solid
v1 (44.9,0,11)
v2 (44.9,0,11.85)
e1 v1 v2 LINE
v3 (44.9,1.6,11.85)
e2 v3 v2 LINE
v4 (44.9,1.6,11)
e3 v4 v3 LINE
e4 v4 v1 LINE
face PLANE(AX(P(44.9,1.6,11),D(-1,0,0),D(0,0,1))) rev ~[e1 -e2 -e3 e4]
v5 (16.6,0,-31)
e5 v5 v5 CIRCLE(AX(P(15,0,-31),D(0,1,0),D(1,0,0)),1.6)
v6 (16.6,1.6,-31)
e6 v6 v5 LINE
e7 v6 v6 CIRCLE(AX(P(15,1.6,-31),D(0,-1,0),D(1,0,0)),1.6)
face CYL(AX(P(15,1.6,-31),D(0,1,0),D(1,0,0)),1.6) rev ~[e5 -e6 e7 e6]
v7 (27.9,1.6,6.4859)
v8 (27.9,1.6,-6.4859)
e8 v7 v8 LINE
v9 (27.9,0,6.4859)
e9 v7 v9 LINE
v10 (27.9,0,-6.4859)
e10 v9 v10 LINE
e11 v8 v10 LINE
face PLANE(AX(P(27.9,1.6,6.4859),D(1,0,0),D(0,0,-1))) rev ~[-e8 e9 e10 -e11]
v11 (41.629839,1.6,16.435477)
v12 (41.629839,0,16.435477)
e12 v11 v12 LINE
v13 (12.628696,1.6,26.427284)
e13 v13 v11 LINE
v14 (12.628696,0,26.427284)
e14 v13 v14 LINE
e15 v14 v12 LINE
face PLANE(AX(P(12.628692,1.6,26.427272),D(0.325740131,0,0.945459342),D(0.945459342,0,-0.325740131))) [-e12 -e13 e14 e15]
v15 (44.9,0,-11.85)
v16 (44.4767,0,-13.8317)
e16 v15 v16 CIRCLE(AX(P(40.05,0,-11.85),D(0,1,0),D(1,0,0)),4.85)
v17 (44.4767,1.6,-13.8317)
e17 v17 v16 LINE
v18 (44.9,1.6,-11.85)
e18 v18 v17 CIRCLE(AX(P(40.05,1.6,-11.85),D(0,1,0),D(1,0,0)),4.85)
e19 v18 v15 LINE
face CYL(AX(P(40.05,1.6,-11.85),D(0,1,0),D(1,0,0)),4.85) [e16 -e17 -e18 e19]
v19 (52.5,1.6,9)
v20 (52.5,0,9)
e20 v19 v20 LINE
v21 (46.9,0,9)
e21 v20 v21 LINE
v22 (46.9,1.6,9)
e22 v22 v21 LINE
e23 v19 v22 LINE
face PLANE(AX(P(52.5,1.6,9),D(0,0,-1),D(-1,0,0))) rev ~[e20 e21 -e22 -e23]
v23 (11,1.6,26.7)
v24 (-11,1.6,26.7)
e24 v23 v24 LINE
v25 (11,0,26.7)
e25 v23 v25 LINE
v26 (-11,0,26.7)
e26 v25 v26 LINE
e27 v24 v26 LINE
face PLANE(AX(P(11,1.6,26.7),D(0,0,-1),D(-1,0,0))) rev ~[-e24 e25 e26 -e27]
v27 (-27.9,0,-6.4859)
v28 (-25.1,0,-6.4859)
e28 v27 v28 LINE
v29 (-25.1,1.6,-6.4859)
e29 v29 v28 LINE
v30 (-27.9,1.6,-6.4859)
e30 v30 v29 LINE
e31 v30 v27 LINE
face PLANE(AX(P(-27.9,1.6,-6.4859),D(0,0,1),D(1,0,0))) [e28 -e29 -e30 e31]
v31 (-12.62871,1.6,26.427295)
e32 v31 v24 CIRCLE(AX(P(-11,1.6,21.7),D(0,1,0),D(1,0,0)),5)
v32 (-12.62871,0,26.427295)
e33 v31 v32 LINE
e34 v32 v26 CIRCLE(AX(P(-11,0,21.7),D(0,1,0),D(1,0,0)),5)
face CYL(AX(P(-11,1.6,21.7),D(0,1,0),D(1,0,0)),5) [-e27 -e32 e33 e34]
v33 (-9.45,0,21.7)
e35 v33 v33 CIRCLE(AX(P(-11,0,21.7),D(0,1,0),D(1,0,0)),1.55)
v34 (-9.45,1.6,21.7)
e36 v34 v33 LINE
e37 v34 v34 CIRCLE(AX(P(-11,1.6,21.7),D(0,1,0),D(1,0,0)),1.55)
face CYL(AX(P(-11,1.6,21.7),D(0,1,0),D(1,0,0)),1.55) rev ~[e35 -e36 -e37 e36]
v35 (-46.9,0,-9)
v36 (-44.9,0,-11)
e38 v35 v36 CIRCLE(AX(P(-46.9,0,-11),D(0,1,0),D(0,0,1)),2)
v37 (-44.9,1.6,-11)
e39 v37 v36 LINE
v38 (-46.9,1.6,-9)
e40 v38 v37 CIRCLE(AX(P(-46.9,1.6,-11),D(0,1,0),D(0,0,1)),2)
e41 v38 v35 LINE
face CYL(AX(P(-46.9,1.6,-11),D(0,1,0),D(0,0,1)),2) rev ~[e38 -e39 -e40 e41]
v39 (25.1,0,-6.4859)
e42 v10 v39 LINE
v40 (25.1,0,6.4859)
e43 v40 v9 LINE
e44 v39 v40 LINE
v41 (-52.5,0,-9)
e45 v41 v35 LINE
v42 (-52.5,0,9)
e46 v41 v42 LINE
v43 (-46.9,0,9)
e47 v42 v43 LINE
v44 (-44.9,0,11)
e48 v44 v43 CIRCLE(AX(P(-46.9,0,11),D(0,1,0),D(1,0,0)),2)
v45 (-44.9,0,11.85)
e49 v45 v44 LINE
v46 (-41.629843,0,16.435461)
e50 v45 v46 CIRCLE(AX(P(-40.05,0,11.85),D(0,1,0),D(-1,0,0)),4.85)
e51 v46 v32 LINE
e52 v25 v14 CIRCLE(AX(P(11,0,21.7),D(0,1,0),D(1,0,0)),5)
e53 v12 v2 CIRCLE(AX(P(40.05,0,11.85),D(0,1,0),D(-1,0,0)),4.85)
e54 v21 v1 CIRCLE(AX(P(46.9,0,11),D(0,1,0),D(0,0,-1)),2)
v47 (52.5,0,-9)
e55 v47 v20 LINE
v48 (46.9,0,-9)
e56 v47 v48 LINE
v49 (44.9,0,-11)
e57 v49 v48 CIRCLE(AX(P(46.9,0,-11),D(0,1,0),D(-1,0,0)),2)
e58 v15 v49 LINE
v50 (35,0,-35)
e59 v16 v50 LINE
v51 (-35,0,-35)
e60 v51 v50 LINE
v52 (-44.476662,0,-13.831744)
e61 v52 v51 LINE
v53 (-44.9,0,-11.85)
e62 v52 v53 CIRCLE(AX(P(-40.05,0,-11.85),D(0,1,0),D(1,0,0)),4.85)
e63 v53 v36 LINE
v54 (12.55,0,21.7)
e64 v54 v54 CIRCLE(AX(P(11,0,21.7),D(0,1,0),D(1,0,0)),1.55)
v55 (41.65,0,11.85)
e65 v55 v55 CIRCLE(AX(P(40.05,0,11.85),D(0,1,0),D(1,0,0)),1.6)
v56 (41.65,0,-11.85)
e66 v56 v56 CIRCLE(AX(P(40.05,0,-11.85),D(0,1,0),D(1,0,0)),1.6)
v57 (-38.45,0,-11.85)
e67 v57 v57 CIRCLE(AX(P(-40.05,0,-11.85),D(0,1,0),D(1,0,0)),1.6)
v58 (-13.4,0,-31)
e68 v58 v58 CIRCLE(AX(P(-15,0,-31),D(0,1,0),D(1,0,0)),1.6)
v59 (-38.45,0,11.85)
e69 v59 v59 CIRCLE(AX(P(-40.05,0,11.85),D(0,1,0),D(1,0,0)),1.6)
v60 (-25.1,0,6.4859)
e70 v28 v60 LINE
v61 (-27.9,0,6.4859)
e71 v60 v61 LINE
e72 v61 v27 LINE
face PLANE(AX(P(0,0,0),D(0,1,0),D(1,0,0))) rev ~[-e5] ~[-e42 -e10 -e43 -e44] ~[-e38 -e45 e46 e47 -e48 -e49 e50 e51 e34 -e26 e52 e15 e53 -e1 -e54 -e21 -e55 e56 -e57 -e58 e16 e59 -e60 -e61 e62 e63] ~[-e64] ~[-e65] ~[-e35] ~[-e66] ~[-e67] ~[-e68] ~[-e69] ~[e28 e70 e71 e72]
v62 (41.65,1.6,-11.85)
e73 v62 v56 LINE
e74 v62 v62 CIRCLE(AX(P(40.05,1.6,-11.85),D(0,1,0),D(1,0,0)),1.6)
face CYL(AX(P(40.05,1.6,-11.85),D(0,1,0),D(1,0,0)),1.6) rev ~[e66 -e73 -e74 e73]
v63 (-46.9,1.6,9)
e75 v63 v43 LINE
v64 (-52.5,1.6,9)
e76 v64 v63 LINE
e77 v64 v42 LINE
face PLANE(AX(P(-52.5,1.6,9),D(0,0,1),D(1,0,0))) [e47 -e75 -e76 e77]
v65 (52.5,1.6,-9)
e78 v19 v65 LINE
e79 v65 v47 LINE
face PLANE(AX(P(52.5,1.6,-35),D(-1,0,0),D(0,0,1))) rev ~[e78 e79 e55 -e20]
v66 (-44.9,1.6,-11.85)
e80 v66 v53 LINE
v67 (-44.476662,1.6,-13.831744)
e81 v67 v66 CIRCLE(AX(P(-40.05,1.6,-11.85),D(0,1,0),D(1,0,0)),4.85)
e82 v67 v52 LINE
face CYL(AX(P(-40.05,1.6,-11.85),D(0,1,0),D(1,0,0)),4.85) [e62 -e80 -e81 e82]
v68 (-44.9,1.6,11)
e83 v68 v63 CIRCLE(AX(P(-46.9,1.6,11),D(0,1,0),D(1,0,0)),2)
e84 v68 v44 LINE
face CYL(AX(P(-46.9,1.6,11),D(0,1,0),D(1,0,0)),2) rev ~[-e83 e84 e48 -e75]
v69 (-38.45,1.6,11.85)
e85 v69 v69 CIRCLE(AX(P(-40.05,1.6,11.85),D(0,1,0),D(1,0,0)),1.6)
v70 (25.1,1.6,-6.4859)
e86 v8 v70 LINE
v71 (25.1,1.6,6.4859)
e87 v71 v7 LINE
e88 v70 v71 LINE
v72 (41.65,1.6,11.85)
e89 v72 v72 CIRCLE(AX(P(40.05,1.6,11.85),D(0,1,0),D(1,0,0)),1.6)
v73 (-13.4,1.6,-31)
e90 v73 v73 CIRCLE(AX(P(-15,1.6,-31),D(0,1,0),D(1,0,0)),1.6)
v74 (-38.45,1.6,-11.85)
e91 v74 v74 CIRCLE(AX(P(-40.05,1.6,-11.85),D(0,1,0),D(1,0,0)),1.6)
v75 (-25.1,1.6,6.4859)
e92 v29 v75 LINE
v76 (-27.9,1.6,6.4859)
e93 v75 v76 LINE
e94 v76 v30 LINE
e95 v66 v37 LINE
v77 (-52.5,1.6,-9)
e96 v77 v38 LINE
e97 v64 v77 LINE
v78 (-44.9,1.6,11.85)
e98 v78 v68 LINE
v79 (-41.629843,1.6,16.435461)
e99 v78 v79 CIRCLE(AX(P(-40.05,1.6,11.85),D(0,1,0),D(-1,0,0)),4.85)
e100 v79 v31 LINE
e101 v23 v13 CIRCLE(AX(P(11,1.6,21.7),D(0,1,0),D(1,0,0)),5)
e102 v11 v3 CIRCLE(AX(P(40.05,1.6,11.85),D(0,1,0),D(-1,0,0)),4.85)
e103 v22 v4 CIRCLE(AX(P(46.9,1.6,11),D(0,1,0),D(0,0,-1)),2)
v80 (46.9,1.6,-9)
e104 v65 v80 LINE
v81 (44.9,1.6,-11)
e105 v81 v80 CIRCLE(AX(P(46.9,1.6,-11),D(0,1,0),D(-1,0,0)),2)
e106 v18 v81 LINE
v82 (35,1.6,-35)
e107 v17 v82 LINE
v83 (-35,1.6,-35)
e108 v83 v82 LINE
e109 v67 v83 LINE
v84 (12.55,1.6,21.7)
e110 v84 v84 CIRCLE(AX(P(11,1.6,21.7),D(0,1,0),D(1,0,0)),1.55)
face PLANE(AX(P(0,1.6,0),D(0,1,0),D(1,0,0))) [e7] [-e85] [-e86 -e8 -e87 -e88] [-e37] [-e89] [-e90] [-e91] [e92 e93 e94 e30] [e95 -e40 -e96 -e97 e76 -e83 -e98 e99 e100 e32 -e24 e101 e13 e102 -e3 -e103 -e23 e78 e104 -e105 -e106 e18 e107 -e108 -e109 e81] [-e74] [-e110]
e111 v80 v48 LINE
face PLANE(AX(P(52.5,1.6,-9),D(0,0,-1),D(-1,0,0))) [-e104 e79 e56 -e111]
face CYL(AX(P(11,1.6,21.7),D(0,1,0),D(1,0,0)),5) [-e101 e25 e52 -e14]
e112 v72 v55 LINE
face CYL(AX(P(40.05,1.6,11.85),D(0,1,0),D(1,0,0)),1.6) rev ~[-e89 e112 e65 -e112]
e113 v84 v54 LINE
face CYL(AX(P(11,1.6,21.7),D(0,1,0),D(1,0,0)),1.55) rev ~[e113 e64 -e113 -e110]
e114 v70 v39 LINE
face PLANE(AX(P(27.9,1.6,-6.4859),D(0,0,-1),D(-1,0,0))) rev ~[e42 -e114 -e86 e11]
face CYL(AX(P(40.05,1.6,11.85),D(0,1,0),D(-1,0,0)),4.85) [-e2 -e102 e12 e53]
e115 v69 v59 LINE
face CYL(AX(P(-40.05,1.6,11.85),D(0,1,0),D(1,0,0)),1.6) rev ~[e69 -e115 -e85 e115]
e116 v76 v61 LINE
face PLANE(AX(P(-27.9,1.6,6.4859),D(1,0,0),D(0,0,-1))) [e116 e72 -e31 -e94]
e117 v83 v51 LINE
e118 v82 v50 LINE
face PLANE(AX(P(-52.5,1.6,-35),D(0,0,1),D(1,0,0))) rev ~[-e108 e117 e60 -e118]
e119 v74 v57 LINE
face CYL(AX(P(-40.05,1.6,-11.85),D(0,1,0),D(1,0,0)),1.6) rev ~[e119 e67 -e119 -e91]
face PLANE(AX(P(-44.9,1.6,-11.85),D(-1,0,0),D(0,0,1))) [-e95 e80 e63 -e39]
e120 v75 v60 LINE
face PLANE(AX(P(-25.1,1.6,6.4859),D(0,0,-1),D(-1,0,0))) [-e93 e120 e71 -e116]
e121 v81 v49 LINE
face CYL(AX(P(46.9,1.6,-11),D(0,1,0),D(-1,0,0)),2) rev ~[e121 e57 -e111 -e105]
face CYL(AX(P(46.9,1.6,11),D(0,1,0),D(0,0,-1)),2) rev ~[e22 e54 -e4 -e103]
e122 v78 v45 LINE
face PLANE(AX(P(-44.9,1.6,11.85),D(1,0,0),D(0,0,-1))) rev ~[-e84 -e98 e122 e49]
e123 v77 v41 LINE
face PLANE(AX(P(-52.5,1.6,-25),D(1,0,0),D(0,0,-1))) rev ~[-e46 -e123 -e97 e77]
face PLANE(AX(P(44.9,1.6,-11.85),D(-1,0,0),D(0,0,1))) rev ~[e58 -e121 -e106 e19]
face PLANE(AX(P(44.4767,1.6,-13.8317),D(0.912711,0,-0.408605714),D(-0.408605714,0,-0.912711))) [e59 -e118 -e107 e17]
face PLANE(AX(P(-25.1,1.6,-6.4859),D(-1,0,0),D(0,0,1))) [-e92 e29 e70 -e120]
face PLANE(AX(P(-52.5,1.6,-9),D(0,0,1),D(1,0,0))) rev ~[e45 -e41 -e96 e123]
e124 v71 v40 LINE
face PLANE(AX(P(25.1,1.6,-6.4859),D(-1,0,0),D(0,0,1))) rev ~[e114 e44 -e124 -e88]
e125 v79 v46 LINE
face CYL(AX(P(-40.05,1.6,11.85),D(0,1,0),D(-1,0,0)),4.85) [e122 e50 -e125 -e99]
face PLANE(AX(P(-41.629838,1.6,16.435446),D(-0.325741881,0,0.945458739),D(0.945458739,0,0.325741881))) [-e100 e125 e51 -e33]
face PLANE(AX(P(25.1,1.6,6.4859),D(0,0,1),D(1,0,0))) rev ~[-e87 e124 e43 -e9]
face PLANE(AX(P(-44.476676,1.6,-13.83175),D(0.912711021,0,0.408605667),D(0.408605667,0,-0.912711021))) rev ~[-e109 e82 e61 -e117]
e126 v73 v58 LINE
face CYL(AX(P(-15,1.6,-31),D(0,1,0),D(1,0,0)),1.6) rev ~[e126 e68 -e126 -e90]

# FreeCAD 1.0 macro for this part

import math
import FreeCAD as App
import Part
import Sketcher

doc = App.newDocument("Part")
params = doc.addObject("Spreadsheet::Sheet", "Params")
for row, (alias, value) in enumerate([
    ("sketch1_width", "105 mm"),
    ("sketch1_height", "50 mm"),
    ("pad1_length", "1.6 mm"),
    ("sketch2_diameter", "3.2 mm"),
    ("pocket1_length", "10 mm"),
    ("sketch3_height", "10 mm"),
    ("sketch3_width", "105 mm"),
    ("pad2_length", "1.6 mm"),
    ("sketch4_radius", "5 mm"),
    ("sketch4_diameter", "3.1 mm"),
    ("sketch4_radius2", "2 mm"),
    ("sketch4_height", "5 mm"),
    ("sketch4_height2", "16 mm"),
    ("pocket2_length", "10 mm"),
    ("sketch5_radius", "5 mm"),
    ("sketch5_width", "22 mm"),
    ("pad3_length", "1.6 mm"),
    ("sketch6_diameter", "3.2 mm"),
    ("sketch7_width", "2.8 mm"),
    ("pocket4_length", "10 mm"),
    ("sketch8_radius", "2 mm"),
    ("sketch8_height", "26 mm"),
    ("sketch8_radius2", "4.85 mm"),
    ("sketch8_width", "5.6 mm"),
    ("sketch8_width2", "17.5 mm"),
    ("pocket5_length", "10 mm"),
    ("sketch9_radius", "5 mm"),
    ("sketch9_height", "5 mm"),
    ("sketch9_radius2", "4.85 mm"),
    ("sketch9_width", "24.05 mm"),
    ("pad4_length", "1.6 mm"),
], start=1):
    params.set(f"A{row}", alias)
    params.set(f"B{row}", "=" + value)
    params.setAlias(f"B{row}", alias)

body = doc.addObject("PartDesign::Body", "Body")

# Sketch on XZ plane
sketch1 = body.newObject("Sketcher::SketchObject", "Sketch")
sketch1.AttachmentSupport = (doc.getObject("XZ_Plane"), [""])
sketch1.MapMode = "FlatFace"
sketch1.addGeometry(Part.LineSegment(App.Vector(-52, -25, 0), App.Vector(-52, 25, 0)), False)
sketch1.addGeometry(Part.LineSegment(App.Vector(-52, 25, 0), App.Vector(52, 25, 0)), False)
sketch1.addGeometry(Part.LineSegment(App.Vector(52, 25, 0), App.Vector(52, -25, 0)), False)
sketch1.addGeometry(Part.LineSegment(App.Vector(52, -25, 0), App.Vector(-52, -25, 0)), False)
sketch1.addConstraint(Sketcher.Constraint("Coincident", 0, 2, 1, 1))
sketch1.addConstraint(Sketcher.Constraint("Coincident", 1, 2, 2, 1))
sketch1.addConstraint(Sketcher.Constraint("Coincident", 2, 2, 3, 1))
sketch1.addConstraint(Sketcher.Constraint("Coincident", 3, 2, 0, 1))
sketch1.addConstraint(Sketcher.Constraint("Vertical", 0))
sketch1.addConstraint(Sketcher.Constraint("Horizontal", 1))
sketch1.addConstraint(Sketcher.Constraint("Vertical", 2))
sketch1.addConstraint(Sketcher.Constraint("Horizontal", 3))
sketch1.addConstraint(Sketcher.Constraint("Symmetric", 0, 2, 2, 2, -1, 1))
sketch1.addConstraint(Sketcher.Constraint("DistanceX", 1, 1, 1, 2, 105.0))
sketch1.addConstraint(Sketcher.Constraint("DistanceY", 0, 1, 0, 2, 50.0))
sketch1.setExpression("Constraints[9]", "Params.sketch1_width")
sketch1.setExpression("Constraints[10]", "Params.sketch1_height")
pad1 = body.newObject("PartDesign::Pad", "Pad")
pad1.Profile = sketch1
pad1.setExpression("Length", "Params.pad1_length")
pad1.Reversed = True

# Sketch on XZ plane
sketch2 = body.newObject("Sketcher::SketchObject", "Sketch001")
sketch2.AttachmentSupport = (doc.getObject("XZ_Plane"), [""])
sketch2.MapMode = "FlatFace"
sketch2.AttachmentOffset = App.Placement(App.Vector(0, 0, -1.6), App.Rotation())
sketch2.addGeometry(Part.Circle(App.Vector(-40, -11.8, 0), App.Vector(0, 0, 1), 1.6), False)
sketch2.addGeometry(Part.Circle(App.Vector(-40, 11.8, 0), App.Vector(0, 0, 1), 1.6), False)
sketch2.addGeometry(Part.Circle(App.Vector(40, -11.8, 0), App.Vector(0, 0, 1), 1.6), False)
sketch2.addGeometry(Part.Circle(App.Vector(40, 11.8, 0), App.Vector(0, 0, 1), 1.6), False)
sketch2.addConstraint(Sketcher.Constraint("Equal", 0, 1))
sketch2.addConstraint(Sketcher.Constraint("Equal", 1, 2))
sketch2.addConstraint(Sketcher.Constraint("Equal", 2, 3))
sketch2.addConstraint(Sketcher.Constraint("Symmetric", 1, 3, 2, 3, -1, 1))
sketch2.addConstraint(Sketcher.Constraint("Symmetric", 0, 3, 3, 3, -1, 1))
sketch2.addConstraint(Sketcher.Constraint("Symmetric", 0, 3, 2, 3, -2))
sketch2.addConstraint(Sketcher.Constraint("Diameter", 0, 3.2))
sketch2.addConstraint(Sketcher.Constraint("DistanceY", 0, 3, 1, 3, 23.7))
sketch2.addConstraint(Sketcher.Constraint("DistanceX", 0, 3, 2, 3, 80.1))
sketch2.setExpression("Constraints[6]", "Params.sketch2_diameter")
pocket1 = body.newObject("PartDesign::Pocket", "Pocket")
pocket1.Profile = sketch2
pocket1.setExpression("Length", "Params.pocket1_length")
pocket1.Reversed = True

# Sketch on XZ plane
sketch3 = body.newObject("Sketcher::SketchObject", "Sketch002")
sketch3.AttachmentSupport = (doc.getObject("XZ_Plane"), [""])
sketch3.MapMode = "FlatFace"
sketch3.AttachmentOffset = App.Placement(App.Vector(0, 0, -1.6), App.Rotation())
sketch3.addGeometry(Part.LineSegment(App.Vector(-52, -25, 0), App.Vector(52, -25, 0)), False)
sketch3.addGeometry(Part.LineSegment(App.Vector(52, -25, 0), App.Vector(52, -35, 0)), False)
sketch3.addGeometry(Part.LineSegment(App.Vector(52, -35, 0), App.Vector(-52, -35, 0)), False)
sketch3.addGeometry(Part.LineSegment(App.Vector(-52, -35, 0), App.Vector(-52, -25, 0)), False)
sketch3.addConstraint(Sketcher.Constraint("Coincident", 0, 2, 1, 1))
sketch3.addConstraint(Sketcher.Constraint("Coincident", 1, 2, 2, 1))
sketch3.addConstraint(Sketcher.Constraint("Coincident", 2, 2, 3, 1))
sketch3.addConstraint(Sketcher.Constraint("Coincident", 3, 2, 0, 1))
sketch3.addConstraint(Sketcher.Constraint("Horizontal", 0))
sketch3.addConstraint(Sketcher.Constraint("Vertical", 1))
sketch3.addConstraint(Sketcher.Constraint("Horizontal", 2))
sketch3.addConstraint(Sketcher.Constraint("Vertical", 3))
sketch3.addConstraint(Sketcher.Constraint("DistanceY", 1, 2, 1, 1, 10.0))
sketch3.addConstraint(Sketcher.Constraint("DistanceX", 0, 1, 0, 2, 105.0))
sketch3.addConstraint(Sketcher.Constraint("DistanceY", 0, 2, -1, 1, 25.0))
sketch3.addConstraint(Sketcher.Constraint("DistanceX", -1, 1, 0, 2, 52.5))
sketch3.setExpression("Constraints[8]", "Params.sketch3_height")
sketch3.setExpression("Constraints[9]", "Params.sketch3_width")
pad2 = body.newObject("PartDesign::Pad", "Pad001")
pad2.Profile = sketch3
pad2.setExpression("Length", "Params.pad2_length")

# Sketch on XZ plane
sketch4 = body.newObject("Sketcher::SketchObject", "Sketch003")
sketch4.AttachmentSupport = (doc.getObject("XZ_Plane"), [""])
sketch4.MapMode = "FlatFace"
sketch4.AttachmentOffset = App.Placement(App.Vector(0, 0, -1.6), App.Rotation())
sketch4.addGeometry(Part.ArcOfCircle(Part.Circle(App.Vector(40, 11.8, 0), App.Vector(0, 0, 1), 4.8), math.radians(0), math.radians(90)), False)
sketch4.addGeometry(Part.LineSegment(App.Vector(40, 16.7, 0), App.Vector(16, 16.7, 0)), False)
sketch4.addGeometry(Part.LineSegment(App.Vector(16, 16.7, 0), App.Vector(16, 21.7, 0)), False)
sketch4.addGeometry(Part.ArcOfCircle(Part.Circle(App.Vector(11, 21.7, 0), App.Vector(0, 0, 1), 5), math.radians(0), math.radians(41)), False)
sketch4.addGeometry(Part.LineSegment(App.Vector(14.8, 25, 0), App.Vector(52.5, 25, 0)), False)
sketch4.addGeometry(Part.LineSegment(App.Vector(52.5, 25, 0), App.Vector(52.5, 9, 0)), False)
sketch4.addGeometry(Part.LineSegment(App.Vector(52.5, 9, 0), App.Vector(46.9, 9, 0)), False)
sketch4.addGeometry(Part.ArcOfCircle(Part.Circle(App.Vector(46.9, 11, 0), App.Vector(0, 0, 1), 2), math.radians(180), math.radians(270)), False)
sketch4.addGeometry(Part.LineSegment(App.Vector(44.9, 11, 0), App.Vector(44.9, 11.8, 0)), False)
sketch4.addGeometry(Part.LineSegment(App.Vector(-16, 21.7, 0), App.Vector(-16, 16.7, 0)), False)
sketch4.addGeometry(Part.LineSegment(App.Vector(-16, 16.7, 0), App.Vector(-40, 16.7, 0)), False)
sketch4.addGeometry(Part.ArcOfCircle(Part.Circle(App.Vector(-40, 11.8, 0), App.Vector(0, 0, 1), 4.9), math.radians(90), math.radians(180)), False)
sketch4.addGeometry(Part.LineSegment(App.Vector(-44.9, 11.8, 0), App.Vector(-44.9, 11, 0)), False)
sketch4.addGeometry(Part.ArcOfCircle(Part.Circle(App.Vector(-46.9, 11, 0), App.Vector(0, 0, 1), 2), math.radians(-90), math.radians(0)), False)
sketch4.addGeometry(Part.LineSegment(App.Vector(-46.9, 9, 0), App.Vector(-52.5, 9, 0)), False)
sketch4.addGeometry(Part.LineSegment(App.Vector(-52.5, 9, 0), App.Vector(-52.5, 25, 0)), False)
sketch4.addGeometry(Part.LineSegment(App.Vector(-52.5, 25, 0), App.Vector(-14.8, 25, 0)), False)
sketch4.addGeometry(Part.ArcOfCircle(Part.Circle(App.Vector(-11, 21.7, 0), App.Vector(0, 0, 1), 5), math.radians(139), math.radians(180)), False)
sketch4.addGeometry(Part.Circle(App.Vector(-11, 21.7, 0), App.Vector(0, 0, 1), 1.6), False)
sketch4.addGeometry(Part.Circle(App.Vector(11, 21.7, 0), App.Vector(0, 0, 1), 1.6), False)
sketch4.addConstraint(Sketcher.Constraint("Tangent", 0, 2, 1, 1))
sketch4.addConstraint(Sketcher.Constraint("Coincident", 1, 2, 2, 1))
sketch4.addConstraint(Sketcher.Constraint("Tangent", 2, 2, 3, 1))
sketch4.addConstraint(Sketcher.Constraint("Coincident", 3, 2, 4, 1))
sketch4.addConstraint(Sketcher.Constraint("Coincident", 4, 2, 5, 1))
sketch4.addConstraint(Sketcher.Constraint("Coincident", 5, 2, 6, 1))
sketch4.addConstraint(Sketcher.Constraint("Tangent", 6, 2, 7, 2))
sketch4.addConstraint(Sketcher.Constraint("Tangent", 7, 1, 8, 1))
sketch4.addConstraint(Sketcher.Constraint("Tangent", 8, 2, 0, 1))
sketch4.addConstraint(Sketcher.Constraint("Coincident", 9, 2, 10, 1))
sketch4.addConstraint(Sketcher.Constraint("Tangent", 10, 2, 11, 1))
sketch4.addConstraint(Sketcher.Constraint("Tangent", 11, 2, 12, 1))
sketch4.addConstraint(Sketcher.Constraint("Tangent", 12, 2, 13, 2))
sketch4.addConstraint(Sketcher.Constraint("Tangent", 13, 1, 14, 1))
sketch4.addConstraint(Sketcher.Constraint("Coincident", 14, 2, 15, 1))
sketch4.addConstraint(Sketcher.Constraint("Coincident", 15, 2, 16, 1))
sketch4.addConstraint(Sketcher.Constraint("Coincident", 16, 2, 17, 1))
sketch4.addConstraint(Sketcher.Constraint("Tangent", 17, 2, 9, 1))
sketch4.addConstraint(Sketcher.Constraint("Horizontal", 1))
sketch4.addConstraint(Sketcher.Constraint("Vertical", 2))
sketch4.addConstraint(Sketcher.Constraint("Horizontal", 4))
sketch4.addConstraint(Sketcher.Constraint("Vertical", 5))
sketch4.addConstraint(Sketcher.Constraint("Horizontal", 6))
sketch4.addConstraint(Sketcher.Constraint("Vertical", 8))
sketch4.addConstraint(Sketcher.Constraint("Vertical", 9))
sketch4.addConstraint(Sketcher.Constraint("Horizontal", 10))
sketch4.addConstraint(Sketcher.Constraint("Vertical", 12))
sketch4.addConstraint(Sketcher.Constraint("Horizontal", 14))
sketch4.addConstraint(Sketcher.Constraint("Vertical", 15))
sketch4.addConstraint(Sketcher.Constraint("Horizontal", 16))
sketch4.addConstraint(Sketcher.Constraint("Coincident", 18, 3, 17, 3))
sketch4.addConstraint(Sketcher.Constraint("Coincident", 19, 3, 3, 3))
sketch4.addConstraint(Sketcher.Constraint("Equal", 0, 11))
sketch4.addConstraint(Sketcher.Constraint("Equal", 7, 13))
sketch4.addConstraint(Sketcher.Constraint("Equal", 3, 17))
sketch4.addConstraint(Sketcher.Constraint("Equal", 18, 19))
sketch4.addConstraint(Sketcher.Constraint("Symmetric", 0, 3, 11, 3, -2))
sketch4.addConstraint(Sketcher.Constraint("Symmetric", 3, 3, 17, 3, -2))
sketch4.addConstraint(Sketcher.Constraint("Symmetric", 5, 2, 14, 2, -2))
sketch4.addConstraint(Sketcher.Constraint("Horizontal", 4, 2, 15, 2))
sketch4.addConstraint(Sketcher.Constraint("Radius", 3, 5.0))
sketch4.addConstraint(Sketcher.Constraint("Diameter", 18, 3.1))
sketch4.addConstraint(Sketcher.Constraint("Radius", 7, 2.0))
sketch4.addConstraint(Sketcher.Constraint("DistanceY", 2, 1, 2, 2, 5.0))
sketch4.addConstraint(Sketcher.Constraint("DistanceY", 5, 2, 5, 1, 16.0))
sketch4.addConstraint(Sketcher.Constraint("Radius", 0, 4.85))
sketch4.addConstraint(Sketcher.Constraint("DistanceX", 6, 2, 6, 1, 5.6))
sketch4.addConstraint(Sketcher.Constraint("DistanceX", -1, 1, 3, 3, 11.0))
sketch4.addConstraint(Sketcher.Constraint("DistanceY", -1, 1, 7, 3, 11.0))
sketch4.addConstraint(Sketcher.Constraint("DistanceX", 1, 2, 1, 1, 24.05))
sketch4.addConstraint(Sketcher.Constraint("DistanceY", 8, 1, 8, 2, 0.85))
sketch4.setExpression("Constraints[40]", "Params.sketch4_radius")
sketch4.setExpression("Constraints[41]", "Params.sketch4_diameter")
sketch4.setExpression("Constraints[42]", "Params.sketch4_radius2")
sketch4.setExpression("Constraints[43]", "Params.sketch4_height")
sketch4.setExpression("Constraints[44]", "Params.sketch4_height2")
pocket2 = body.newObject("PartDesign::Pocket", "Pocket001")
pocket2.Profile = sketch4
pocket2.setExpression("Length", "Params.pocket2_length")
pocket2.Reversed = True

# Sketch on XZ plane
sketch5 = body.newObject("Sketcher::SketchObject", "Sketch004")
sketch5.AttachmentSupport = (doc.getObject("XZ_Plane"), [""])
sketch5.MapMode = "FlatFace"
sketch5.AttachmentOffset = App.Placement(App.Vector(0, 0, -1.6), App.Rotation())
sketch5.addGeometry(Part.ArcOfCircle(Part.Circle(App.Vector(11, 21.7, 0), App.Vector(0, 0, 1), 5), math.radians(41), math.radians(90)), False)
sketch5.addGeometry(Part.LineSegment(App.Vector(14.8, 25, 0), App.Vector(-14.8, 25, 0)), False)
sketch5.addGeometry(Part.ArcOfCircle(Part.Circle(App.Vector(-11, 21.7, 0), App.Vector(0, 0, 1), 5), math.radians(90), math.radians(139)), False)
sketch5.addGeometry(Part.LineSegment(App.Vector(-11, 26.7, 0), App.Vector(11, 26.7, 0)), False)
sketch5.addConstraint(Sketcher.Constraint("Coincident", 0, 1, 1, 1))
sketch5.addConstraint(Sketcher.Constraint("Coincident", 1, 2, 2, 2))
sketch5.addConstraint(Sketcher.Constraint("Tangent", 2, 1, 3, 1))
sketch5.addConstraint(Sketcher.Constraint("Tangent", 3, 2, 0, 2))
sketch5.addConstraint(Sketcher.Constraint("Horizontal", 1))
sketch5.addConstraint(Sketcher.Constraint("Horizontal", 3))
sketch5.addConstraint(Sketcher.Constraint("Equal", 0, 2))
sketch5.addConstraint(Sketcher.Constraint("Radius", 0, 5.0))
sketch5.addConstraint(Sketcher.Constraint("DistanceX", 3, 1, 3, 2, 22.0))
sketch5.addConstraint(Sketcher.Constraint("DistanceX", -1, 1, 0, 3, 11.0))
sketch5.addConstraint(Sketcher.Constraint("DistanceY", -1, 1, 0, 1, 25.0))
sketch5.addConstraint(Sketcher.Constraint("DistanceY", -1, 1, 0, 3, 21.7))
sketch5.setExpression("Constraints[7]", "Params.sketch5_radius")
sketch5.setExpression("Constraints[8]", "Params.sketch5_width")
pad3 = body.newObject("PartDesign::Pad", "Pad002")
pad3.Profile = sketch5
pad3.setExpression("Length", "Params.pad3_length")

# Sketch on XZ plane
sketch6 = body.newObject("Sketcher::SketchObject", "Sketch005")
sketch6.AttachmentSupport = (doc.getObject("XZ_Plane"), [""])
sketch6.MapMode = "FlatFace"
sketch6.AttachmentOffset = App.Placement(App.Vector(0, 0, -1.6), App.Rotation())
sketch6.addGeometry(Part.Circle(App.Vector(-15, -31, 0), App.Vector(0, 0, 1), 1.6), False)
sketch6.addGeometry(Part.Circle(App.Vector(15, -31, 0), App.Vector(0, 0, 1), 1.6), False)
sketch6.addConstraint(Sketcher.Constraint("Equal", 0, 1))
sketch6.addConstraint(Sketcher.Constraint("Symmetric", 0, 3, 1, 3, -2))
sketch6.addConstraint(Sketcher.Constraint("Diameter", 0, 3.2))
sketch6.addConstraint(Sketcher.Constraint("DistanceX", 0, 3, 1, 3, 30.0))
sketch6.addConstraint(Sketcher.Constraint("DistanceY", 0, 3, -1, 1, 31.0))
sketch6.setExpression("Constraints[2]", "Params.sketch6_diameter")
pocket3 = body.newObject("PartDesign::Pocket", "Pocket002")
pocket3.Profile = sketch6
pocket3.Type = "ThroughAll"
pocket3.Reversed = True

# Sketch on XZ plane
sketch7 = body.newObject("Sketcher::SketchObject", "Sketch006")
sketch7.AttachmentSupport = (doc.getObject("XZ_Plane"), [""])
sketch7.MapMode = "FlatFace"
sketch7.AttachmentOffset = App.Placement(App.Vector(0, 0, -1.6), App.Rotation())
sketch7.addGeometry(Part.LineSegment(App.Vector(-27.9, -6.5, 0), App.Vector(-27.9, 6.5, 0)), False)
sketch7.addGeometry(Part.LineSegment(App.Vector(-27.9, 6.5, 0), App.Vector(-25.1, 6.5, 0)), False)
sketch7.addGeometry(Part.LineSegment(App.Vector(-25.1, 6.5, 0), App.Vector(-25.1, -6.5, 0)), False)
sketch7.addGeometry(Part.LineSegment(App.Vector(-25.1, -6.5, 0), App.Vector(-27.9, -6.5, 0)), False)
sketch7.addGeometry(Part.LineSegment(App.Vector(25.1, -6.5, 0), App.Vector(25.1, 6.5, 0)), False)
sketch7.addGeometry(Part.LineSegment(App.Vector(25.1, 6.5, 0), App.Vector(27.9, 6.5, 0)), False)
sketch7.addGeometry(Part.LineSegment(App.Vector(27.9, 6.5, 0), App.Vector(27.9, -6.5, 0)), False)
sketch7.addGeometry(Part.LineSegment(App.Vector(27.9, -6.5, 0), App.Vector(25.1, -6.5, 0)), False)
sketch7.addConstraint(Sketcher.Constraint("Coincident", 0, 2, 1, 1))
sketch7.addConstraint(Sketcher.Constraint("Coincident", 1, 2, 2, 1))
sketch7.addConstraint(Sketcher.Constraint("Coincident", 2, 2, 3, 1))
sketch7.addConstraint(Sketcher.Constraint("Coincident", 3, 2, 0, 1))
sketch7.addConstraint(Sketcher.Constraint("Coincident", 4, 2, 5, 1))
sketch7.addConstraint(Sketcher.Constraint("Coincident", 5, 2, 6, 1))
sketch7.addConstraint(Sketcher.Constraint("Coincident", 6, 2, 7, 1))
sketch7.addConstraint(Sketcher.Constraint("Coincident", 7, 2, 4, 1))
sketch7.addConstraint(Sketcher.Constraint("Vertical", 0))
sketch7.addConstraint(Sketcher.Constraint("Horizontal", 1))
sketch7.addConstraint(Sketcher.Constraint("Vertical", 2))
sketch7.addConstraint(Sketcher.Constraint("Horizontal", 3))
sketch7.addConstraint(Sketcher.Constraint("Vertical", 4))
sketch7.addConstraint(Sketcher.Constraint("Horizontal", 5))
sketch7.addConstraint(Sketcher.Constraint("Vertical", 6))
sketch7.addConstraint(Sketcher.Constraint("Horizontal", 7))
sketch7.addConstraint(Sketcher.Constraint("Symmetric", 2, 2, 4, 2, -1, 1))
sketch7.addConstraint(Sketcher.Constraint("Symmetric", 0, 2, 6, 2, -1, 1))
sketch7.addConstraint(Sketcher.Constraint("Horizontal", 1, 2, 4, 2))
sketch7.addConstraint(Sketcher.Constraint("DistanceX", 1, 1, 1, 2, 2.8))
sketch7.addConstraint(Sketcher.Constraint("DistanceX", 0, 2, 4, 2, 53.0))
sketch7.addConstraint(Sketcher.Constraint("DistanceY", 0, 1, 0, 2, 12.9718))
sketch7.setExpression("Constraints[19]", "Params.sketch7_width")
pocket4 = body.newObject("PartDesign::Pocket", "Pocket003")
pocket4.Profile = sketch7
pocket4.setExpression("Length", "Params.pocket4_length")
pocket4.Reversed = True

# Sketch on XZ plane
sketch8 = body.newObject("Sketcher::SketchObject", "Sketch007")
sketch8.AttachmentSupport = (doc.getObject("XZ_Plane"), [""])
sketch8.MapMode = "FlatFace"
sketch8.AttachmentOffset = App.Placement(App.Vector(0, 0, -1.6), App.Rotation())
sketch8.addGeometry(Part.LineSegment(App.Vector(46.9, -9, 0), App.Vector(52.5, -9, 0)), False)
sketch8.addGeometry(Part.LineSegment(App.Vector(52.5, -9, 0), App.Vector(52.5, -35, 0)), False)
sketch8.addGeometry(Part.LineSegment(App.Vector(52.5, -35, 0), App.Vector(35, -35, 0)), False)
sketch8.addGeometry(Part.LineSegment(App.Vector(35, -35, 0), App.Vector(44.5, -13.8, 0)), False)
sketch8.addGeometry(Part.ArcOfCircle(Part.Circle(App.Vector(40, -11.8, 0), App.Vector(0, 0, 1), 4.9), math.radians(-24), math.radians(0)), False)
sketch8.addGeometry(Part.LineSegment(App.Vector(44.9, -11.8, 0), App.Vector(44.9, -11, 0)), False)
sketch8.addGeometry(Part.ArcOfCircle(Part.Circle(App.Vector(46.9, -11, 0), App.Vector(0, 0, 1), 2), math.radians(90), math.radians(180)), False)
sketch8.addGeometry(Part.LineSegment(App.Vector(-44.5, -13.8, 0), App.Vector(-35, -35, 0)), False)
sketch8.addGeometry(Part.LineSegment(App.Vector(-35, -35, 0), App.Vector(-52.5, -35, 0)), False)
sketch8.addGeometry(Part.LineSegment(App.Vector(-52.5, -35, 0), App.Vector(-52.5, -9, 0)), False)
sketch8.addGeometry(Part.LineSegment(App.Vector(-52.5, -9, 0), App.Vector(-46.9, -9, 0)), False)
sketch8.addGeometry(Part.ArcOfCircle(Part.Circle(App.Vector(-46.9, -11, 0), App.Vector(0, 0, 1), 2), math.radians(0), math.radians(90)), False)
sketch8.addGeometry(Part.LineSegment(App.Vector(-44.9, -11, 0), App.Vector(-44.9, -11.8, 0)), False)
sketch8.addGeometry(Part.ArcOfCircle(Part.Circle(App.Vector(-40, -11.8, 0), App.Vector(0, 0, 1), 4.8), math.radians(180), math.radians(204)), False)
sketch8.addConstraint(Sketcher.Constraint("Coincident", 0, 2, 1, 1))
sketch8.addConstraint(Sketcher.Constraint("Coincident", 1, 2, 2, 1))
sketch8.addConstraint(Sketcher.Constraint("Coincident", 2, 2, 3, 1))
sketch8.addConstraint(Sketcher.Constraint("Tangent", 3, 2, 4, 1))
sketch8.addConstraint(Sketcher.Constraint("Tangent", 4, 2, 5, 1))
sketch8.addConstraint(Sketcher.Constraint("Tangent", 5, 2, 6, 2))
sketch8.addConstraint(Sketcher.Constraint("Tangent", 6, 1, 0, 1))
sketch8.addConstraint(Sketcher.Constraint("Coincident", 7, 2, 8, 1))
sketch8.addConstraint(Sketcher.Constraint("Coincident", 8, 2, 9, 1))
sketch8.addConstraint(Sketcher.Constraint("Coincident", 9, 2, 10, 1))
sketch8.addConstraint(Sketcher.Constraint("Tangent", 10, 2, 11, 2))
sketch8.addConstraint(Sketcher.Constraint("Tangent", 11, 1, 12, 1))
sketch8.addConstraint(Sketcher.Constraint("Tangent", 12, 2, 13, 1))
sketch8.addConstraint(Sketcher.Constraint("Tangent", 13, 2, 7, 1))
sketch8.addConstraint(Sketcher.Constraint("Horizontal", 0))
sketch8.addConstraint(Sketcher.Constraint("Vertical", 1))
sketch8.addConstraint(Sketcher.Constraint("Horizontal", 2))
sketch8.addConstraint(Sketcher.Constraint("Vertical", 5))
sketch8.addConstraint(Sketcher.Constraint("Horizontal", 8))
sketch8.addConstraint(Sketcher.Constraint("Vertical", 9))
sketch8.addConstraint(Sketcher.Constraint("Horizontal", 10))
sketch8.addConstraint(Sketcher.Constraint("Vertical", 12))
sketch8.addConstraint(Sketcher.Constraint("Equal", 6, 11))
sketch8.addConstraint(Sketcher.Constraint("Equal", 4, 13))
sketch8.addConstraint(Sketcher.Constraint("Symmetric", 6, 3, 11, 3, -2))
sketch8.addConstraint(Sketcher.Constraint("Symmetric", 2, 2, 7, 2, -2))
sketch8.addConstraint(Sketcher.Constraint("Horizontal", 4, 3, 13, 3))
sketch8.addConstraint(Sketcher.Constraint("Equal", 2, 8))
sketch8.addConstraint(Sketcher.Constraint("Radius", 6, 2.0))
sketch8.addConstraint(Sketcher.Constraint("DistanceY", 1, 2, 1, 1, 26.0))
sketch8.addConstraint(Sketcher.Constraint("Radius", 4, 4.85))
sketch8.addConstraint(Sketcher.Constraint("DistanceX", 0, 1, 0, 2, 5.6))
sketch8.addConstraint(Sketcher.Constraint("DistanceX", 2, 2, 2, 1, 17.5))
sketch8.addConstraint(Sketcher.Constraint("DistanceY", 6, 3, -1, 1, 11.0))
sketch8.addConstraint(Sketcher.Constraint("DistanceX", -1, 1, 2, 2, 35.0))
sketch8.addConstraint(Sketcher.Constraint("DistanceY", 5, 1, 5, 2, 0.85))
sketch8.setExpression("Constraints[28]", "Params.sketch8_radius")
sketch8.setExpression("Constraints[29]", "Params.sketch8_height")
sketch8.setExpression("Constraints[30]", "Params.sketch8_radius2")
sketch8.setExpression("Constraints[31]", "Params.sketch8_width")
sketch8.setExpression("Constraints[32]", "Params.sketch8_width2")
pocket5 = body.newObject("PartDesign::Pocket", "Pocket004")
pocket5.Profile = sketch8
pocket5.setExpression("Length", "Params.pocket5_length")
pocket5.Reversed = True

# Sketch on XZ plane
sketch9 = body.newObject("Sketcher::SketchObject", "Sketch008")
sketch9.AttachmentSupport = (doc.getObject("XZ_Plane"), [""])
sketch9.MapMode = "FlatFace"
sketch9.AttachmentOffset = App.Placement(App.Vector(0, 0, -1.6), App.Rotation())
sketch9.addGeometry(Part.ArcOfCircle(Part.Circle(App.Vector(-40, 11.8, 0), App.Vector(0, 0, 1), 4.9), math.radians(90), math.radians(109.01)), False)
sketch9.addGeometry(Part.LineSegment(App.Vector(-41.6, 16.4, 0), App.Vector(-12.6, 26.4, 0)), False)
sketch9.addGeometry(Part.ArcOfCircle(Part.Circle(App.Vector(-11, 21.7, 0), App.Vector(0, 0, 1), 5), math.radians(109), math.radians(180)), False)
sketch9.addGeometry(Part.LineSegment(App.Vector(-16, 21.7, 0), App.Vector(-16, 16.7, 0)), False)
sketch9.addGeometry(Part.LineSegment(App.Vector(-16, 16.7, 0), App.Vector(-40, 16.7, 0)), False)
sketch9.addGeometry(Part.ArcOfCircle(Part.Circle(App.Vector(11, 21.7, 0), App.Vector(0, 0, 1), 5), math.radians(0), math.radians(71)), False)
sketch9.addGeometry(Part.LineSegment(App.Vector(12.6, 26.4, 0), App.Vector(41.6, 16.4, 0)), False)
sketch9.addGeometry(Part.ArcOfCircle(Part.Circle(App.Vector(40, 11.8, 0), App.Vector(0, 0, 1), 4.8), math.radians(70.99), math.radians(90)), False)
sketch9.addGeometry(Part.LineSegment(App.Vector(40, 16.7, 0), App.Vector(16, 16.7, 0)), False)
sketch9.addGeometry(Part.LineSegment(App.Vector(16, 16.7, 0), App.Vector(16, 21.7, 0)), False)
sketch9.addConstraint(Sketcher.Constraint("Tangent", 0, 2, 1, 1))
sketch9.addConstraint(Sketcher.Constraint("Tangent", 1, 2, 2, 1))
sketch9.addConstraint(Sketcher.Constraint("Tangent", 2, 2, 3, 1))
sketch9.addConstraint(Sketcher.Constraint("Coincident", 3, 2, 4, 1))
sketch9.addConstraint(Sketcher.Constraint("Tangent", 4, 2, 0, 1))
sketch9.addConstraint(Sketcher.Constraint("Tangent", 5, 2, 6, 1))
sketch9.addConstraint(Sketcher.Constraint("Tangent", 6, 2, 7, 1))
sketch9.addConstraint(Sketcher.Constraint("Tangent", 7, 2, 8, 1))
sketch9.addConstraint(Sketcher.Constraint("Coincident", 8, 2, 9, 1))
sketch9.addConstraint(Sketcher.Constraint("Tangent", 9, 2, 5, 1))
sketch9.addConstraint(Sketcher.Constraint("Vertical", 3))
sketch9.addConstraint(Sketcher.Constraint("Horizontal", 4))
sketch9.addConstraint(Sketcher.Constraint("Horizontal", 8))
sketch9.addConstraint(Sketcher.Constraint("Vertical", 9))
sketch9.addConstraint(Sketcher.Constraint("Equal", 2, 5))
sketch9.addConstraint(Sketcher.Constraint("Equal", 0, 7))
sketch9.addConstraint(Sketcher.Constraint("Symmetric", 2, 3, 5, 3, -2))
sketch9.addConstraint(Sketcher.Constraint("Symmetric", 0, 3, 7, 3, -2))
sketch9.addConstraint(Sketcher.Constraint("Radius", 2, 5.0))
sketch9.addConstraint(Sketcher.Constraint("DistanceY", 3, 2, 3, 1, 5.0))
sketch9.addConstraint(Sketcher.Constraint("Radius", 0, 4.85))
sketch9.addConstraint(Sketcher.Constraint("DistanceX", 2, 3, -1, 1, 11.0))
sketch9.addConstraint(Sketcher.Constraint("DistanceX", 4, 2, 4, 1, 24.05))
sketch9.addConstraint(Sketcher.Constraint("DistanceY", -1, 1, 2, 3, 21.7))
sketch9.setExpression("Constraints[18]", "Params.sketch9_radius")
sketch9.setExpression("Constraints[19]", "Params.sketch9_height")
sketch9.setExpression("Constraints[20]", "Params.sketch9_radius2")
sketch9.setExpression("Constraints[22]", "Params.sketch9_width")
pad4 = body.newObject("PartDesign::Pad", "Pad003")
pad4.Profile = sketch9
pad4.setExpression("Length", "Params.pad4_length")

doc.recompute()
